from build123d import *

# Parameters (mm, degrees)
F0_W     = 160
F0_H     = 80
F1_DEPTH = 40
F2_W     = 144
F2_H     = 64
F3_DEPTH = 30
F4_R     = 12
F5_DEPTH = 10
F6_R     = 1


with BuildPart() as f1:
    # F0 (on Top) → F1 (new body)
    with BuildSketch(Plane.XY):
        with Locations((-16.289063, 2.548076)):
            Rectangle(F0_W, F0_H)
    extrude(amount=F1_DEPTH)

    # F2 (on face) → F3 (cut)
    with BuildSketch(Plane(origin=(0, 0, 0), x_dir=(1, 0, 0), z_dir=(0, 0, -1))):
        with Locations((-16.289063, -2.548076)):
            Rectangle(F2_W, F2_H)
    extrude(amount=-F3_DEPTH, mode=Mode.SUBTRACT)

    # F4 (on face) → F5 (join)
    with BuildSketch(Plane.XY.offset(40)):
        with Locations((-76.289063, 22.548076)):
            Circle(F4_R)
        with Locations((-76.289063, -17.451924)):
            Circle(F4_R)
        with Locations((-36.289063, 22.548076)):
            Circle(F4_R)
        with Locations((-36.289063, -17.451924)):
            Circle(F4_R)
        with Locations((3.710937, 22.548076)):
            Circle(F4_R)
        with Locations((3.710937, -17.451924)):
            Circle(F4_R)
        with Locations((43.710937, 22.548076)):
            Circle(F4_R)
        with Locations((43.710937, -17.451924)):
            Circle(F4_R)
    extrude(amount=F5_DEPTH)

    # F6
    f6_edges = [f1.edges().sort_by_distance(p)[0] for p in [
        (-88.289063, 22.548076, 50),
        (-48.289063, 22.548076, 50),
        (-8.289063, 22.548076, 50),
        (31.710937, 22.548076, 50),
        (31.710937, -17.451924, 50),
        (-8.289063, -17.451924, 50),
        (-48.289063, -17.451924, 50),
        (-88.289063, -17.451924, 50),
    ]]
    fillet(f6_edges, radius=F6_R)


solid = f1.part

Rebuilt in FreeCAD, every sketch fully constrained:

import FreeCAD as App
import Part
import Sketcher


def edges_at(feature, points):
    """Names of the edges that pass closest to the given points."""
    edges = feature.Shape.Edges
    near = lambda p: min(range(len(edges)), key=lambda i: edges[i].distToShape(Part.Vertex(*p))[0])
    return sorted({f"Edge{near(p) + 1}" for p in points})


def add_polygon(sketch, points):
    """Adds a closed chain of lines whose ends are joined by coincident constraints."""
    first, n = sketch.GeometryCount, len(points)
    for a, b in zip(points, points[1:] + points[:1]):
        sketch.addGeometry(Part.LineSegment(App.Vector(*a, 0), App.Vector(*b, 0)), False)
    for i in range(n):
        sketch.addConstraint(Sketcher.Constraint("Coincident", first + i, 2, first + (i + 1) % n, 1))

doc = App.newDocument("Part")
body = doc.addObject("PartDesign::Body", "Body")

sketch1 = doc.addObject("Sketcher::SketchObject", "Sketch")
body.addObject(sketch1)
sketch1.AttachmentSupport = (doc.XY_Plane, [""])
sketch1.MapMode = "FlatFace"
add_polygon(sketch1, [(-96, 43), (-96, -37), (64, -37), (64, 43)])
sketch1.addConstraint([
    Sketcher.Constraint("Vertical", 0),
    Sketcher.Constraint("Horizontal", 1),
    Sketcher.Constraint("Vertical", 2),
    Sketcher.Constraint("Horizontal", 3),
    Sketcher.Constraint("DistanceX", 1, 1, 1, 2, 160.0),
    Sketcher.Constraint("DistanceY", 0, 2, 0, 1, 80.0),
    Sketcher.Constraint("DistanceX", 0, 2, -1, 1, 96.289063),
    Sketcher.Constraint("DistanceY", 0, 2, -1, 1, 37.451924),
])
pad1 = doc.addObject("PartDesign::Pad", "Pad")
body.addObject(pad1)
pad1.Profile = sketch1
pad1.Length = 40

sketch2 = doc.addObject("Sketcher::SketchObject", "Sketch001")
body.addObject(sketch2)
sketch2.AttachmentSupport = (doc.XY_Plane, [""])
sketch2.MapMode = "FlatFace"
add_polygon(sketch2, [(-88, -29), (-88, 35), (56, 35), (56, -29)])
sketch2.addConstraint([
    Sketcher.Constraint("Vertical", 0),
    Sketcher.Constraint("Horizontal", 1),
    Sketcher.Constraint("Vertical", 2),
    Sketcher.Constraint("Horizontal", 3),
    Sketcher.Constraint("DistanceX", 1, 1, 1, 2, 144.0),
    Sketcher.Constraint("DistanceY", 0, 1, 0, 2, 64.0),
    Sketcher.Constraint("DistanceX", 0, 2, -1, 1, 88.289063),
    Sketcher.Constraint("DistanceY", -1, 1, 0, 2, 34.548076),
])
pocket1 = doc.addObject("PartDesign::Pocket", "Pocket")
body.addObject(pocket1)
pocket1.Profile = sketch2
pocket1.Length = 30
pocket1.Reversed = True

sketch3 = doc.addObject("Sketcher::SketchObject", "Sketch002")
body.addObject(sketch3)
sketch3.AttachmentSupport = (doc.XY_Plane, [""])
sketch3.MapMode = "FlatFace"
sketch3.AttachmentOffset = App.Placement(App.Vector(0, 0, 40), App.Rotation())
sketch3.addGeometry([
    Part.Circle(App.Vector(-76, 23, 0), App.Vector(0, 0, 1), 12),
    Part.Circle(App.Vector(-76, -17, 0), App.Vector(0, 0, 1), 12),
    Part.Circle(App.Vector(-36, 23, 0), App.Vector(0, 0, 1), 12),
    Part.Circle(App.Vector(-36, -17, 0), App.Vector(0, 0, 1), 12),
    Part.Circle(App.Vector(4, 23, 0), App.Vector(0, 0, 1), 12),
    Part.Circle(App.Vector(4, -17, 0), App.Vector(0, 0, 1), 12),
    Part.Circle(App.Vector(44, 23, 0), App.Vector(0, 0, 1), 12),
    Part.Circle(App.Vector(44, -17, 0), App.Vector(0, 0, 1), 12),
], False)
sketch3.addConstraint([
    Sketcher.Constraint("Equal", 0, 1),
    Sketcher.Constraint("Equal", 1, 2),
    Sketcher.Constraint("Equal", 2, 3),
    Sketcher.Constraint("Equal", 3, 4),
    Sketcher.Constraint("Equal", 4, 5),
    Sketcher.Constraint("Equal", 5, 6),
    Sketcher.Constraint("Equal", 6, 7),
    Sketcher.Constraint("Horizontal", 0, 3, 2, 3),
    Sketcher.Constraint("Horizontal", 1, 3, 3, 3),
    Sketcher.Constraint("Horizontal", 2, 3, 4, 3),
    Sketcher.Constraint("Horizontal", 3, 3, 5, 3),
    Sketcher.Constraint("Horizontal", 4, 3, 6, 3),
    Sketcher.Constraint("Horizontal", 5, 3, 7, 3),
    Sketcher.Constraint("Vertical", 0, 3, 1, 3),
    Sketcher.Constraint("Vertical", 2, 3, 3, 3),
    Sketcher.Constraint("Vertical", 4, 3, 5, 3),
    Sketcher.Constraint("Vertical", 6, 3, 7, 3),
    Sketcher.Constraint("Diameter", 0, 24.0),
    Sketcher.Constraint("DistanceY", 1, 3, 0, 3, 40.0),
    Sketcher.Constraint("DistanceX", 0, 3, 2, 3, 40.0),
    Sketcher.Constraint("DistanceX", 2, 3, 4, 3, 40.0),
    Sketcher.Constraint("DistanceX", 4, 3, 6, 3, 40.0),
    Sketcher.Constraint("DistanceX", 0, 3, -1, 1, 76.289063),
    Sketcher.Constraint("DistanceY", -1, 1, 0, 3, 22.548076),
])
pad2 = doc.addObject("PartDesign::Pad", "Pad001")
body.addObject(pad2)
pad2.Profile = sketch3
pad2.Length = 10
doc.recompute()

fillet = doc.addObject("PartDesign::Fillet", "Fillet")
body.addObject(fillet)
fillet.Base = (pad2, edges_at(pad2, [
    (-88.289, 22.548, 50),
    (-48.289, 22.548, 50),
    (-8.289, 22.548, 50),
    (31.711, 22.548, 50),
    (31.711, -17.452, 50),
    (-8.289, -17.452, 50),
    (-48.289, -17.452, 50),
    (-88.289, -17.452, 50),
]))
fillet.Radius = 1

doc.recompute()
